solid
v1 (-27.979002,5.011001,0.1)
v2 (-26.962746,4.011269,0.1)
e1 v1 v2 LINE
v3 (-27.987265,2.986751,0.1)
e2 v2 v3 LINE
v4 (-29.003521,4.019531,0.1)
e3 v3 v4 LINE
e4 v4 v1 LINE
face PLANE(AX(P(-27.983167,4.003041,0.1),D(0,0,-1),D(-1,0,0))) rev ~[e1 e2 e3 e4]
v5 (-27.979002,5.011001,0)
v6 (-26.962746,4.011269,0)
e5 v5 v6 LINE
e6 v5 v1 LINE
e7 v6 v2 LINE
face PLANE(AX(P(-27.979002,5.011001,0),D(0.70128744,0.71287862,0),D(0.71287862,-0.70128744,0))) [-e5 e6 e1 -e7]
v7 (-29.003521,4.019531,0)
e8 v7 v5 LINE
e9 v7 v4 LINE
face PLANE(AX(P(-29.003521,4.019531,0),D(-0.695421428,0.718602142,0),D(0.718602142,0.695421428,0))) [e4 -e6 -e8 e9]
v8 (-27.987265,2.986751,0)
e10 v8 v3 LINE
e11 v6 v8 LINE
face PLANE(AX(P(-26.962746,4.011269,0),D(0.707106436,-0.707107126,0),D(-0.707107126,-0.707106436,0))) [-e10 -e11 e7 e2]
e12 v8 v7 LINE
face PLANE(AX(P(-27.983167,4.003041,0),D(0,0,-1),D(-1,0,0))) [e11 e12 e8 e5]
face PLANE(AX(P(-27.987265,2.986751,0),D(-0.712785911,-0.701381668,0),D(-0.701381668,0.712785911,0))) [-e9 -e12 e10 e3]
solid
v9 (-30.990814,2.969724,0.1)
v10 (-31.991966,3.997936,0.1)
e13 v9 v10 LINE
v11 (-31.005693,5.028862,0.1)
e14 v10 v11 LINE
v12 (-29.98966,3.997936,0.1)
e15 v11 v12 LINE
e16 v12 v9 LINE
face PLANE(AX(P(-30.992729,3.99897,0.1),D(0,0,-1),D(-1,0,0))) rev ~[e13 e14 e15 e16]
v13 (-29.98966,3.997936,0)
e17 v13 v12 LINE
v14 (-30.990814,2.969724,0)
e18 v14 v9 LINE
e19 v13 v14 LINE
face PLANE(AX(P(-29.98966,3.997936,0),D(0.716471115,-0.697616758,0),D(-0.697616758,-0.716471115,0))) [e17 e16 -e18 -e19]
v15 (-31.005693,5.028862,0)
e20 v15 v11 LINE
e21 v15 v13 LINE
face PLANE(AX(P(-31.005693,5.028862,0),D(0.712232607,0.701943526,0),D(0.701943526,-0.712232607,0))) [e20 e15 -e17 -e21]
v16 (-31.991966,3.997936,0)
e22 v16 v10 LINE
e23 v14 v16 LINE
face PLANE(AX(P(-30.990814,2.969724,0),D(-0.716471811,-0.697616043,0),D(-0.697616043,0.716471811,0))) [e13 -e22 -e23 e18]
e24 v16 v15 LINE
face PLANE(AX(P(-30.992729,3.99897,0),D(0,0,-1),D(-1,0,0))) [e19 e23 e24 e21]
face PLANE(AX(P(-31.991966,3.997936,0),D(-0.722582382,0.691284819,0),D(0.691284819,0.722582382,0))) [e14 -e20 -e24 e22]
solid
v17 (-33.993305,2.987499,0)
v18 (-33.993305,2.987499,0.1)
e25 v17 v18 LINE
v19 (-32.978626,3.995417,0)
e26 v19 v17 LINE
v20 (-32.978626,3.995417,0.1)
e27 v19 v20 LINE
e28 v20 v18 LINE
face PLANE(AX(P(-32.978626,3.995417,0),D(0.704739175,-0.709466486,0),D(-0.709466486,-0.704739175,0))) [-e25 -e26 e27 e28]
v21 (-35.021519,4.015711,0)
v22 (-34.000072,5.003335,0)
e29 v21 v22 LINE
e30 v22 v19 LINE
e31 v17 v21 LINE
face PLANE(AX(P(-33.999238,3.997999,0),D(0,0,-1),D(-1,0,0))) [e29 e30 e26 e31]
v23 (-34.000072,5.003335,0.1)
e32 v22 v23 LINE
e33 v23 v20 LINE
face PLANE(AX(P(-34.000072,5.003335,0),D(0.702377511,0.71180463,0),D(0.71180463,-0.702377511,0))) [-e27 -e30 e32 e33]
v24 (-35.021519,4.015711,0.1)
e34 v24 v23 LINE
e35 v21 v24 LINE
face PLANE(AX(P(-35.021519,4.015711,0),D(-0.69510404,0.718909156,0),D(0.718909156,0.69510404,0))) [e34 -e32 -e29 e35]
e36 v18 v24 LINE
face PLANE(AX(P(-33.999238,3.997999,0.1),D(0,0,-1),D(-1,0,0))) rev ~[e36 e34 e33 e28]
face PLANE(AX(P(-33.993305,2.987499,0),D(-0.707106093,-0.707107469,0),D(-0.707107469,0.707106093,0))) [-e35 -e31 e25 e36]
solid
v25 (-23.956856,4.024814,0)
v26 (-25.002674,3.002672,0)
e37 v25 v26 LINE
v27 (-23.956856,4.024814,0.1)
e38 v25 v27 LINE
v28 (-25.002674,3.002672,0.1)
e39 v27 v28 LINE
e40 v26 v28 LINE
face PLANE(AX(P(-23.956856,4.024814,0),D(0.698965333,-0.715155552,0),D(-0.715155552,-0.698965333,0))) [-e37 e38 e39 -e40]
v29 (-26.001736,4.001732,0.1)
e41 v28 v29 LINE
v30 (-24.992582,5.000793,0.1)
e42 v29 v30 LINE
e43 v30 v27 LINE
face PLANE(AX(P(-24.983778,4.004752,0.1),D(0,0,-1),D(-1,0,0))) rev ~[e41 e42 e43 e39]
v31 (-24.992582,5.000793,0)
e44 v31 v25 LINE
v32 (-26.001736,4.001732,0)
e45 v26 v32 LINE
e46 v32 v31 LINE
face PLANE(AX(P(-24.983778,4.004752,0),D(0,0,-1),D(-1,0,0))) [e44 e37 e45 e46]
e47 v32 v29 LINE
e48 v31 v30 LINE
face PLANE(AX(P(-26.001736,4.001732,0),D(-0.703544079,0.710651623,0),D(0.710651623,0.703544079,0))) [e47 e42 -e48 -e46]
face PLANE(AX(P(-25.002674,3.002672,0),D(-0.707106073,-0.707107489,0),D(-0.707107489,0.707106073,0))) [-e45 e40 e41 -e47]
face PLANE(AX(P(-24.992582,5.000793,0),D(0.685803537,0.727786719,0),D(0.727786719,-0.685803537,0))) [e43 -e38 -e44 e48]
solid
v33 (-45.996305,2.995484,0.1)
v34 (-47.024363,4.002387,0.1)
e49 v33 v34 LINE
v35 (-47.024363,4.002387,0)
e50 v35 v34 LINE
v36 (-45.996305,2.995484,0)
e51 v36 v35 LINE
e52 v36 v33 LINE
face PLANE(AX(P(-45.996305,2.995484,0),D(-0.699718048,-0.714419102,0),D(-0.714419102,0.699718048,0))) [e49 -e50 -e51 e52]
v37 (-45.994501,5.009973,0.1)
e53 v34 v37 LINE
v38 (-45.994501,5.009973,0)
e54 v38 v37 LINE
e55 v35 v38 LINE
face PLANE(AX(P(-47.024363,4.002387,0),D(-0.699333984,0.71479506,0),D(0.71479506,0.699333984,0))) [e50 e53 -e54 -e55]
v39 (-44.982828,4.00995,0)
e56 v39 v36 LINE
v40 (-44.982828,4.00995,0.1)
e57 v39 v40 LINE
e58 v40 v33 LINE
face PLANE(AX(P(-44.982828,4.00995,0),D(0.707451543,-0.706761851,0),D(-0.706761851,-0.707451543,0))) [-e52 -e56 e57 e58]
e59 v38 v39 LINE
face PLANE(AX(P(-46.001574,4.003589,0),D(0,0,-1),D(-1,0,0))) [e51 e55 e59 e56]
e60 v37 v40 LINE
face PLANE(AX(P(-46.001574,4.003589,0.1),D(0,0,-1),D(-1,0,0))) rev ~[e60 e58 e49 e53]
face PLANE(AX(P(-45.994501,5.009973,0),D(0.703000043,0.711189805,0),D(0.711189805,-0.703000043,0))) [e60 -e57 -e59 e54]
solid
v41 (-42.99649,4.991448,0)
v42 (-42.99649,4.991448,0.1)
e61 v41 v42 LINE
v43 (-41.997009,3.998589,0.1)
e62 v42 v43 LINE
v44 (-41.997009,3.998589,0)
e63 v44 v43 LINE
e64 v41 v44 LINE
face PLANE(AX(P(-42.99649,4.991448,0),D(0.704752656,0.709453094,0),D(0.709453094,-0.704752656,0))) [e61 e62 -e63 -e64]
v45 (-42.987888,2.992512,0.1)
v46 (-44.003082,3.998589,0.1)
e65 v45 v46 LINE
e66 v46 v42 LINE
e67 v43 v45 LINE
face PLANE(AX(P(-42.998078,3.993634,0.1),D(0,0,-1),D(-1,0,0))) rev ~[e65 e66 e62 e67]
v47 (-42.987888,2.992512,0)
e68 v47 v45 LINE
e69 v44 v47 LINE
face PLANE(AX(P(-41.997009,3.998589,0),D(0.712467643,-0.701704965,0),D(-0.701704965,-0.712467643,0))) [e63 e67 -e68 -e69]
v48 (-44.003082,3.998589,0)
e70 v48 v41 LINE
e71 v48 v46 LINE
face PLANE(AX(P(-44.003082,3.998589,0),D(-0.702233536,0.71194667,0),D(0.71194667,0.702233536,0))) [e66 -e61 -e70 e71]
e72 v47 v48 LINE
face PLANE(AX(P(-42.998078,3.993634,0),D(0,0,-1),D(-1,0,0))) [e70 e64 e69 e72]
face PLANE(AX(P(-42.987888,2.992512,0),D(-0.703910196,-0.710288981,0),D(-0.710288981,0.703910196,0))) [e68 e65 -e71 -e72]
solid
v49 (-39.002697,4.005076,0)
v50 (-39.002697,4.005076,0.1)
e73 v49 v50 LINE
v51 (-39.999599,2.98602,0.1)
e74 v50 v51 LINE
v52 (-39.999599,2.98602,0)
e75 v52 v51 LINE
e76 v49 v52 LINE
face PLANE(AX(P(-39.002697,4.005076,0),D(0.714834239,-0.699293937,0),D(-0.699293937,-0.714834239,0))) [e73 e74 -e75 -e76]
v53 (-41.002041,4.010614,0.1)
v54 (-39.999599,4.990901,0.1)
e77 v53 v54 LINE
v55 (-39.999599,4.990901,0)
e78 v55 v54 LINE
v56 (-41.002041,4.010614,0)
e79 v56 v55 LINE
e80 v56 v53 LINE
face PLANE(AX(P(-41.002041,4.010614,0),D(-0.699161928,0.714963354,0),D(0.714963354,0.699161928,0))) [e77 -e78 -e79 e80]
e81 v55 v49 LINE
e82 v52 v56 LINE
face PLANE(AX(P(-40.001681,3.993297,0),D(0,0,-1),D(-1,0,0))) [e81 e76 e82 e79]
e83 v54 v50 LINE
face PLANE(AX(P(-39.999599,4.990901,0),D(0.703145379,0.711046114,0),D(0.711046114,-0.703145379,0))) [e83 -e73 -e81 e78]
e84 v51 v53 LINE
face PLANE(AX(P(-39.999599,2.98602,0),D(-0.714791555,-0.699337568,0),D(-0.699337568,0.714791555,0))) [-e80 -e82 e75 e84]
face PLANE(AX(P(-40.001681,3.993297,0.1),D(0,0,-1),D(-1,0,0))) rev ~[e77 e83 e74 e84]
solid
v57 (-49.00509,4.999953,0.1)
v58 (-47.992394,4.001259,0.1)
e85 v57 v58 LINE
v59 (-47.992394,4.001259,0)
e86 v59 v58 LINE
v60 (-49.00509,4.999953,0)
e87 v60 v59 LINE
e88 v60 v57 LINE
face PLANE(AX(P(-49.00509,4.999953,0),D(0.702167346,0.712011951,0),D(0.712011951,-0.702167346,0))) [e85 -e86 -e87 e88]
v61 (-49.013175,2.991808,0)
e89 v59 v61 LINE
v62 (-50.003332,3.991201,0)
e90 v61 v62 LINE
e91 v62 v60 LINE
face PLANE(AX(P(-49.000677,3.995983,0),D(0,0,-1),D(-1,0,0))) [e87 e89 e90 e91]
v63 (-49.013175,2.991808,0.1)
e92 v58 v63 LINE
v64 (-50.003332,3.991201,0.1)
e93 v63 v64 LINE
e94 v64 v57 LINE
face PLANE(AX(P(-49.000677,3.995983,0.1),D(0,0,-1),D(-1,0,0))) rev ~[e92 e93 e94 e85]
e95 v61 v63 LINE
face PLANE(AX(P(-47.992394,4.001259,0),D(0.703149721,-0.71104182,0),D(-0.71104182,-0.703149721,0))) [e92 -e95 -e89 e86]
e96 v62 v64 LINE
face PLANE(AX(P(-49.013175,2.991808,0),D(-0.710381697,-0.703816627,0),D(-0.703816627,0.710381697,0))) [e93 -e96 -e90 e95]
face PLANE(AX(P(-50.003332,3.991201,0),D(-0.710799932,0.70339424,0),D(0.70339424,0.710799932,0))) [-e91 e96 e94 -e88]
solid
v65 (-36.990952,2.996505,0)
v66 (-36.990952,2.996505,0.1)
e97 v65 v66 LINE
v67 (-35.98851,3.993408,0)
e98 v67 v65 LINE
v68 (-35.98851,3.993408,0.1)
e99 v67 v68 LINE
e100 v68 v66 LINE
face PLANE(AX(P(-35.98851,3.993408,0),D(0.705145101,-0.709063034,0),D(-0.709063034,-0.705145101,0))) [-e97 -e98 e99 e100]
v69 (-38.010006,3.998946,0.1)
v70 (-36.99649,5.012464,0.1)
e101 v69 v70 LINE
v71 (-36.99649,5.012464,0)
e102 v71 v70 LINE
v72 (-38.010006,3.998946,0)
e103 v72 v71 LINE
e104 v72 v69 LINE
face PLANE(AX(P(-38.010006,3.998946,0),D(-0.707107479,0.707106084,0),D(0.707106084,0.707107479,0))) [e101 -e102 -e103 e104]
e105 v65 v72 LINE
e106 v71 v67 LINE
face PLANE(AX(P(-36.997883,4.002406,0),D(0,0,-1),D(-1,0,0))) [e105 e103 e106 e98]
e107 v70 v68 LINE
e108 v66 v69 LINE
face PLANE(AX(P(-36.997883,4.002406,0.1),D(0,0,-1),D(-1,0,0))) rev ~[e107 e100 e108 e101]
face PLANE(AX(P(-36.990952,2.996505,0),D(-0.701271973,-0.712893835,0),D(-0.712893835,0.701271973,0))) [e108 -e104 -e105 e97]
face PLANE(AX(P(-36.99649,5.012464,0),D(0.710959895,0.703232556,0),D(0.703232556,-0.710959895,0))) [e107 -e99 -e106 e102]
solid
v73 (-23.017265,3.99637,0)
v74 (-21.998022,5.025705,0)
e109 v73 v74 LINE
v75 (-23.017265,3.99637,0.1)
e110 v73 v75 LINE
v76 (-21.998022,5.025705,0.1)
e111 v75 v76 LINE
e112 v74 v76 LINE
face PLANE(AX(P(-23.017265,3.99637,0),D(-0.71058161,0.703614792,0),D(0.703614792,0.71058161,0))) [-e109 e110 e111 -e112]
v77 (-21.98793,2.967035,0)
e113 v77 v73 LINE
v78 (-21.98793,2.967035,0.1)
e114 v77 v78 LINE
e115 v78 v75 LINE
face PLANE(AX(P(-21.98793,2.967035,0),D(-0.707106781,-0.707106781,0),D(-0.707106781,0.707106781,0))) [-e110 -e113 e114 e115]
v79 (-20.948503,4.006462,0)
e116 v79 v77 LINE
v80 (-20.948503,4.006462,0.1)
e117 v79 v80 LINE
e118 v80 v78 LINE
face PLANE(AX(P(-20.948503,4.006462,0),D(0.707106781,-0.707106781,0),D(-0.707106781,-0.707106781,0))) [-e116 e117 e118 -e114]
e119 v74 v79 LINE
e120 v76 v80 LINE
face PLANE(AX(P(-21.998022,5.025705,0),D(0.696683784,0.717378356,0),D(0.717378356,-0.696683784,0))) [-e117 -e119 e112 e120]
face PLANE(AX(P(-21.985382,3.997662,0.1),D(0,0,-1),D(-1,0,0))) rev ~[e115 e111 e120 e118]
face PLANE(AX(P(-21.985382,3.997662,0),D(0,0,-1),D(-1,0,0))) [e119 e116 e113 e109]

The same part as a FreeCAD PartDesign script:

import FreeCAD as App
import Part
import Sketcher

V = App.Vector
Q = App.Units.Quantity


def add_polygon(sketch, points):
    """Adds a closed chain of lines whose ends are joined by coincident constraints."""
    first, n = sketch.GeometryCount, len(points)
    for a, b in zip(points, points[1:] + points[:1]):
        sketch.addGeometry(Part.LineSegment(App.Vector(*a, 0), App.Vector(*b, 0)), False)
    for i in range(n):
        sketch.addConstraint(Sketcher.Constraint("Coincident", first + i, 2, first + (i + 1) % n, 1))

doc = App.newDocument("Part")
body = doc.addObject("PartDesign::Body", "Body")

# Sketch on XY plane
sketch1 = body.newObject("Sketcher::SketchObject", "Sketch")
sketch1.AttachmentSupport = (doc.getObject("XY_Plane"), [""])
sketch1.MapMode = "FlatFace"
add_polygon(sketch1, [(-49, 5), (-50, 4), (-49, 3), (-48, 4)])  # lines 0-3
sketch1.addConstraint([
    Sketcher.Constraint("Distance", 3, 1.422302),
    Sketcher.Constraint("DistanceY", -1, 1, 0, 2, 3.991201),
    Sketcher.Constraint("Distance", 0, 1.419179),
    Sketcher.Constraint("Distance", 1, 1.406839),
    Sketcher.Constraint("DistanceY", -1, 1, 2, 2, 4.001259),
    Sketcher.Constraint("DistanceX", 3, 2, -1, 1, 49.00509),
    Sketcher.Constraint("DistanceX", 1, 2, 2, 2, 1.020781),
    Sketcher.Constraint("DistanceY", 1, 2, 2, 2, 1.009451),
])
pad1 = body.newObject("PartDesign::Pad", "Pad")
pad1.Profile = sketch1
pad1.Length = 0.1
body2 = doc.addObject("PartDesign::Body", "Body001")

# Sketch on XY plane
sketch2 = body2.newObject("Sketcher::SketchObject", "Sketch001")
sketch2.AttachmentSupport = (doc.getObject("XY_Plane001"), [""])
sketch2.MapMode = "FlatFace"
add_polygon(sketch2, [(-46, 5), (-47, 4), (-46, 3), (-45, 4)])  # lines 0-3
sketch2.addConstraint([
    Sketcher.Constraint("DistanceX", 3, 2, -1, 1, 45.994501),
    Sketcher.Constraint("Distance", 0, 1.440779),
    Sketcher.Constraint("DistanceY", -1, 1, 2, 2, 4.00995),
    Sketcher.Constraint("DistanceX", 0, 2, 1, 2, 1.028058),
    Sketcher.Constraint("DistanceY", 1, 2, 3, 2, 2.014489),
    Sketcher.Constraint("Distance", 1, 1.439012),
    Sketcher.Constraint("Distance", 2, 1.433972),
    Sketcher.Constraint("Distance", 3, 1.422508),
])
pad2 = body2.newObject("PartDesign::Pad", "Pad001")
pad2.Profile = sketch2
pad2.Length = 0.1
body3 = doc.addObject("PartDesign::Body", "Body002")

# Sketch on XY plane
sketch3 = body3.newObject("Sketcher::SketchObject", "Sketch002")
sketch3.AttachmentSupport = (doc.getObject("XY_Plane002"), [""])
sketch3.MapMode = "FlatFace"
add_polygon(sketch3, [(-43, 5), (-44, 4), (-43, 3), (-42, 4)])  # lines 0-3
sketch3.addConstraint([
    Sketcher.Constraint("Horizontal", 0, 2, 2, 2),
    Sketcher.Constraint("Distance", 0, 1.413859),
    Sketcher.Constraint("Distance", 1, 1.429269),
    Sketcher.Constraint("DistanceY", -1, 1, 0, 2, 3.998589),
    Sketcher.Constraint("DistanceX", 2, 2, -1, 1, 41.997009),
    Sketcher.Constraint("DistanceX", 3, 2, -1, 1, 42.99649),
    Sketcher.Constraint("DistanceX", 1, 2, 2, 2, 0.990879),
    Sketcher.Constraint("DistanceY", 2, 2, 3, 2, 0.992859),
])
pad3 = body3.newObject("PartDesign::Pad", "Pad002")
pad3.Profile = sketch3
pad3.Length = 0.1
body4 = doc.addObject("PartDesign::Body", "Body003")

# Sketch on XY plane
sketch4 = body4.newObject("Sketcher::SketchObject", "Sketch003")
sketch4.AttachmentSupport = (doc.getObject("XY_Plane003"), [""])
sketch4.MapMode = "FlatFace"
add_polygon(sketch4, [(-40, 5), (-41, 4), (-40, 3), (-39, 4)])  # lines 0-3
sketch4.addConstraint([
    Sketcher.Constraint("Vertical", 1, 2, 3, 2),
    Sketcher.Constraint("DistanceX", 1, 2, -1, 1, 39.999599),
    Sketcher.Constraint("DistanceY", -1, 1, 3, 2, 4.990901),
    Sketcher.Constraint("Distance", 0, 1.402089),
    Sketcher.Constraint("Distance", 3, 1.402022),
    Sketcher.Constraint("DistanceX", 0, 2, -1, 1, 41.002041),
    Sketcher.Constraint("DistanceY", -1, 1, 1, 2, 2.98602),
    Sketcher.Constraint("DistanceY", 2, 2, 0, 2, 0.005538),
])
pad4 = body4.newObject("PartDesign::Pad", "Pad003")
pad4.Profile = sketch4
pad4.Length = 0.1
body5 = doc.addObject("PartDesign::Body", "Body004")

# Sketch on XY plane
sketch5 = body5.newObject("Sketcher::SketchObject", "Sketch004")
sketch5.AttachmentSupport = (doc.getObject("XY_Plane004"), [""])
sketch5.MapMode = "FlatFace"
add_polygon(sketch5, [(-37, 5), (-38, 4), (-37, 3), (-36, 4)])  # lines 0-3
sketch5.addConstraint([
    Sketcher.Constraint("Distance", 0, 1.433329),
    Sketcher.Constraint("Distance", 1, 1.429461),
    Sketcher.Constraint("DistanceX", 2, 2, -1, 1, 35.98851),
    Sketcher.Constraint("DistanceY", -1, 1, 2, 2, 3.993408),
    Sketcher.Constraint("DistanceX", 3, 2, -1, 1, 36.99649),
    Sketcher.Constraint("DistanceY", 1, 2, 0, 2, 1.002441),
    Sketcher.Constraint("DistanceY", 2, 2, 0, 2, 0.005538),
    Sketcher.Constraint("DistanceX", 3, 2, 1, 2, 0.005538),
])
pad5 = body5.newObject("PartDesign::Pad", "Pad004")
pad5.Profile = sketch5
pad5.Length = 0.1
body6 = doc.addObject("PartDesign::Body", "Body005")

# Sketch on XY plane
sketch6 = body6.newObject("Sketcher::SketchObject", "Sketch005")
sketch6.AttachmentSupport = (doc.getObject("XY_Plane005"), [""])
sketch6.MapMode = "FlatFace"
add_polygon(sketch6, [(-34, 5), (-35, 4), (-34, 3), (-33, 4)])  # lines 0-3
sketch6.addConstraint([
    Sketcher.Constraint("Distance", 2, 1.4302),
    Sketcher.Constraint("DistanceY", -1, 1, 1, 2, 2.987499),
    Sketcher.Constraint("Distance", 0, 1.420829),
    Sketcher.Constraint("Distance", 3, 1.435009),
    Sketcher.Constraint("DistanceX", 0, 2, -1, 1, 35.021519),
    Sketcher.Constraint("DistanceY", -1, 1, 0, 2, 4.015711),
    Sketcher.Constraint("DistanceX", 1, 2, 2, 2, 1.014679),
    Sketcher.Constraint("Distance", 1, 1.454113),
])
pad6 = body6.newObject("PartDesign::Pad", "Pad005")
pad6.Profile = sketch6
pad6.Length = 0.1
body7 = doc.addObject("PartDesign::Body", "Body006")

# Sketch on XY plane
sketch7 = body7.newObject("Sketcher::SketchObject", "Sketch006")
sketch7.AttachmentSupport = (doc.getObject("XY_Plane006"), [""])
sketch7.MapMode = "FlatFace"
add_polygon(sketch7, [(-31, 5), (-32, 4), (-31, 3), (-30, 4)])  # lines 0-3
sketch7.addConstraint([
    Sketcher.Constraint("Horizontal", 0, 2, 2, 2),
    Sketcher.Constraint("Equal", 1, 2),
    Sketcher.Constraint("DistanceX", 2, 2, -1, 1, 29.98966),
    Sketcher.Constraint("DistanceX", 3, 2, 1, 2, 0.014879),
    Sketcher.Constraint("DistanceY", 1, 2, 3, 2, 2.059138),
    Sketcher.Constraint("Distance", 0, 1.426725),
    Sketcher.Constraint("Distance", 1, 1.435105),
    Sketcher.Constraint("DistanceY", -1, 1, 0, 2, 3.997936),
])
pad7 = body7.newObject("PartDesign::Pad", "Pad006")
pad7.Profile = sketch7
pad7.Length = 0.1
body8 = doc.addObject("PartDesign::Body", "Body007")

# Sketch on XY plane
sketch8 = body8.newObject("Sketcher::SketchObject", "Sketch007")
sketch8.AttachmentSupport = (doc.getObject("XY_Plane007"), [""])
sketch8.MapMode = "FlatFace"
add_polygon(sketch8, [(-28, 5), (-29, 4), (-28, 3), (-27, 4)])  # lines 0-3
sketch8.addConstraint([
    Sketcher.Constraint("DistanceY", -1, 1, 3, 2, 5.011001),
    Sketcher.Constraint("Distance", 0, 1.425711),
    Sketcher.Constraint("DistanceX", 0, 2, -1, 1, 29.003521),
    Sketcher.Constraint("DistanceY", -1, 1, 0, 2, 4.019531),
    Sketcher.Constraint("DistanceY", -1, 1, 1, 2, 2.986751),
    Sketcher.Constraint("DistanceY", -1, 1, 2, 2, 4.011269),
    Sketcher.Constraint("DistanceX", 1, 2, 2, 2, 1.024519),
    Sketcher.Constraint("Distance", 1, 1.448934),
])
pad8 = body8.newObject("PartDesign::Pad", "Pad007")
pad8.Profile = sketch8
pad8.Length = 0.1
body9 = doc.addObject("PartDesign::Body", "Body008")

# Sketch on XY plane
sketch9 = body9.newObject("Sketcher::SketchObject", "Sketch008")
sketch9.AttachmentSupport = (doc.getObject("XY_Plane008"), [""])
sketch9.MapMode = "FlatFace"
add_polygon(sketch9, [(-25, 5), (-26, 4), (-25, 3), (-24, 4)])  # lines 0-3
sketch9.addConstraint([
    Sketcher.Constraint("Distance", 0, 1.42004),
    Sketcher.Constraint("DistanceY", -1, 1, 0, 2, 4.001732),
    Sketcher.Constraint("DistanceY", -1, 1, 1, 2, 3.002672),
    Sketcher.Constraint("DistanceX", 3, 2, -1, 1, 24.992582),
    Sketcher.Constraint("DistanceX", 1, 2, 2, 2, 1.045818),
    Sketcher.Constraint("DistanceX", 0, 2, 2, 2, 2.04488),
    Sketcher.Constraint("DistanceY", 0, 2, 3, 2, 0.999061),
    Sketcher.Constraint("DistanceY", 2, 2, 3, 2, 0.975979),
])
pad9 = body9.newObject("PartDesign::Pad", "Pad008")
pad9.Profile = sketch9
pad9.Length = 0.1
body10 = doc.addObject("PartDesign::Body", "Body009")

# Sketch on XY plane
sketch10 = body10.newObject("Sketcher::SketchObject", "Sketch009")
sketch10.AttachmentSupport = (doc.getObject("XY_Plane009"), [""])
sketch10.MapMode = "FlatFace"
add_polygon(sketch10, [(-22, 5), (-23, 4), (-22, 3), (-20.9, 4)])  # lines 0-3
sketch10.addConstraint([
    Sketcher.Constraint("Perpendicular", 1, 2),
    Sketcher.Constraint("Angle", 1, Q("-45 deg")),
    Sketcher.Constraint("Distance", 1, 1.4557),
    Sketcher.Constraint("Distance", 0, 1.448581),
    Sketcher.Constraint("Distance", 2, 1.469972),
    Sketcher.Constraint("DistanceY", -1, 1, 0, 2, 3.99637),
    Sketcher.Constraint("DistanceX", 1, 2, -1, 1, 21.98793),
    Sketcher.Constraint("DistanceX", 3, 2, -1, 1, 21.998022),
])
pad10 = body10.newObject("PartDesign::Pad", "Pad009")
pad10.Profile = sketch10
pad10.Length = 0.1

doc.recompute()
